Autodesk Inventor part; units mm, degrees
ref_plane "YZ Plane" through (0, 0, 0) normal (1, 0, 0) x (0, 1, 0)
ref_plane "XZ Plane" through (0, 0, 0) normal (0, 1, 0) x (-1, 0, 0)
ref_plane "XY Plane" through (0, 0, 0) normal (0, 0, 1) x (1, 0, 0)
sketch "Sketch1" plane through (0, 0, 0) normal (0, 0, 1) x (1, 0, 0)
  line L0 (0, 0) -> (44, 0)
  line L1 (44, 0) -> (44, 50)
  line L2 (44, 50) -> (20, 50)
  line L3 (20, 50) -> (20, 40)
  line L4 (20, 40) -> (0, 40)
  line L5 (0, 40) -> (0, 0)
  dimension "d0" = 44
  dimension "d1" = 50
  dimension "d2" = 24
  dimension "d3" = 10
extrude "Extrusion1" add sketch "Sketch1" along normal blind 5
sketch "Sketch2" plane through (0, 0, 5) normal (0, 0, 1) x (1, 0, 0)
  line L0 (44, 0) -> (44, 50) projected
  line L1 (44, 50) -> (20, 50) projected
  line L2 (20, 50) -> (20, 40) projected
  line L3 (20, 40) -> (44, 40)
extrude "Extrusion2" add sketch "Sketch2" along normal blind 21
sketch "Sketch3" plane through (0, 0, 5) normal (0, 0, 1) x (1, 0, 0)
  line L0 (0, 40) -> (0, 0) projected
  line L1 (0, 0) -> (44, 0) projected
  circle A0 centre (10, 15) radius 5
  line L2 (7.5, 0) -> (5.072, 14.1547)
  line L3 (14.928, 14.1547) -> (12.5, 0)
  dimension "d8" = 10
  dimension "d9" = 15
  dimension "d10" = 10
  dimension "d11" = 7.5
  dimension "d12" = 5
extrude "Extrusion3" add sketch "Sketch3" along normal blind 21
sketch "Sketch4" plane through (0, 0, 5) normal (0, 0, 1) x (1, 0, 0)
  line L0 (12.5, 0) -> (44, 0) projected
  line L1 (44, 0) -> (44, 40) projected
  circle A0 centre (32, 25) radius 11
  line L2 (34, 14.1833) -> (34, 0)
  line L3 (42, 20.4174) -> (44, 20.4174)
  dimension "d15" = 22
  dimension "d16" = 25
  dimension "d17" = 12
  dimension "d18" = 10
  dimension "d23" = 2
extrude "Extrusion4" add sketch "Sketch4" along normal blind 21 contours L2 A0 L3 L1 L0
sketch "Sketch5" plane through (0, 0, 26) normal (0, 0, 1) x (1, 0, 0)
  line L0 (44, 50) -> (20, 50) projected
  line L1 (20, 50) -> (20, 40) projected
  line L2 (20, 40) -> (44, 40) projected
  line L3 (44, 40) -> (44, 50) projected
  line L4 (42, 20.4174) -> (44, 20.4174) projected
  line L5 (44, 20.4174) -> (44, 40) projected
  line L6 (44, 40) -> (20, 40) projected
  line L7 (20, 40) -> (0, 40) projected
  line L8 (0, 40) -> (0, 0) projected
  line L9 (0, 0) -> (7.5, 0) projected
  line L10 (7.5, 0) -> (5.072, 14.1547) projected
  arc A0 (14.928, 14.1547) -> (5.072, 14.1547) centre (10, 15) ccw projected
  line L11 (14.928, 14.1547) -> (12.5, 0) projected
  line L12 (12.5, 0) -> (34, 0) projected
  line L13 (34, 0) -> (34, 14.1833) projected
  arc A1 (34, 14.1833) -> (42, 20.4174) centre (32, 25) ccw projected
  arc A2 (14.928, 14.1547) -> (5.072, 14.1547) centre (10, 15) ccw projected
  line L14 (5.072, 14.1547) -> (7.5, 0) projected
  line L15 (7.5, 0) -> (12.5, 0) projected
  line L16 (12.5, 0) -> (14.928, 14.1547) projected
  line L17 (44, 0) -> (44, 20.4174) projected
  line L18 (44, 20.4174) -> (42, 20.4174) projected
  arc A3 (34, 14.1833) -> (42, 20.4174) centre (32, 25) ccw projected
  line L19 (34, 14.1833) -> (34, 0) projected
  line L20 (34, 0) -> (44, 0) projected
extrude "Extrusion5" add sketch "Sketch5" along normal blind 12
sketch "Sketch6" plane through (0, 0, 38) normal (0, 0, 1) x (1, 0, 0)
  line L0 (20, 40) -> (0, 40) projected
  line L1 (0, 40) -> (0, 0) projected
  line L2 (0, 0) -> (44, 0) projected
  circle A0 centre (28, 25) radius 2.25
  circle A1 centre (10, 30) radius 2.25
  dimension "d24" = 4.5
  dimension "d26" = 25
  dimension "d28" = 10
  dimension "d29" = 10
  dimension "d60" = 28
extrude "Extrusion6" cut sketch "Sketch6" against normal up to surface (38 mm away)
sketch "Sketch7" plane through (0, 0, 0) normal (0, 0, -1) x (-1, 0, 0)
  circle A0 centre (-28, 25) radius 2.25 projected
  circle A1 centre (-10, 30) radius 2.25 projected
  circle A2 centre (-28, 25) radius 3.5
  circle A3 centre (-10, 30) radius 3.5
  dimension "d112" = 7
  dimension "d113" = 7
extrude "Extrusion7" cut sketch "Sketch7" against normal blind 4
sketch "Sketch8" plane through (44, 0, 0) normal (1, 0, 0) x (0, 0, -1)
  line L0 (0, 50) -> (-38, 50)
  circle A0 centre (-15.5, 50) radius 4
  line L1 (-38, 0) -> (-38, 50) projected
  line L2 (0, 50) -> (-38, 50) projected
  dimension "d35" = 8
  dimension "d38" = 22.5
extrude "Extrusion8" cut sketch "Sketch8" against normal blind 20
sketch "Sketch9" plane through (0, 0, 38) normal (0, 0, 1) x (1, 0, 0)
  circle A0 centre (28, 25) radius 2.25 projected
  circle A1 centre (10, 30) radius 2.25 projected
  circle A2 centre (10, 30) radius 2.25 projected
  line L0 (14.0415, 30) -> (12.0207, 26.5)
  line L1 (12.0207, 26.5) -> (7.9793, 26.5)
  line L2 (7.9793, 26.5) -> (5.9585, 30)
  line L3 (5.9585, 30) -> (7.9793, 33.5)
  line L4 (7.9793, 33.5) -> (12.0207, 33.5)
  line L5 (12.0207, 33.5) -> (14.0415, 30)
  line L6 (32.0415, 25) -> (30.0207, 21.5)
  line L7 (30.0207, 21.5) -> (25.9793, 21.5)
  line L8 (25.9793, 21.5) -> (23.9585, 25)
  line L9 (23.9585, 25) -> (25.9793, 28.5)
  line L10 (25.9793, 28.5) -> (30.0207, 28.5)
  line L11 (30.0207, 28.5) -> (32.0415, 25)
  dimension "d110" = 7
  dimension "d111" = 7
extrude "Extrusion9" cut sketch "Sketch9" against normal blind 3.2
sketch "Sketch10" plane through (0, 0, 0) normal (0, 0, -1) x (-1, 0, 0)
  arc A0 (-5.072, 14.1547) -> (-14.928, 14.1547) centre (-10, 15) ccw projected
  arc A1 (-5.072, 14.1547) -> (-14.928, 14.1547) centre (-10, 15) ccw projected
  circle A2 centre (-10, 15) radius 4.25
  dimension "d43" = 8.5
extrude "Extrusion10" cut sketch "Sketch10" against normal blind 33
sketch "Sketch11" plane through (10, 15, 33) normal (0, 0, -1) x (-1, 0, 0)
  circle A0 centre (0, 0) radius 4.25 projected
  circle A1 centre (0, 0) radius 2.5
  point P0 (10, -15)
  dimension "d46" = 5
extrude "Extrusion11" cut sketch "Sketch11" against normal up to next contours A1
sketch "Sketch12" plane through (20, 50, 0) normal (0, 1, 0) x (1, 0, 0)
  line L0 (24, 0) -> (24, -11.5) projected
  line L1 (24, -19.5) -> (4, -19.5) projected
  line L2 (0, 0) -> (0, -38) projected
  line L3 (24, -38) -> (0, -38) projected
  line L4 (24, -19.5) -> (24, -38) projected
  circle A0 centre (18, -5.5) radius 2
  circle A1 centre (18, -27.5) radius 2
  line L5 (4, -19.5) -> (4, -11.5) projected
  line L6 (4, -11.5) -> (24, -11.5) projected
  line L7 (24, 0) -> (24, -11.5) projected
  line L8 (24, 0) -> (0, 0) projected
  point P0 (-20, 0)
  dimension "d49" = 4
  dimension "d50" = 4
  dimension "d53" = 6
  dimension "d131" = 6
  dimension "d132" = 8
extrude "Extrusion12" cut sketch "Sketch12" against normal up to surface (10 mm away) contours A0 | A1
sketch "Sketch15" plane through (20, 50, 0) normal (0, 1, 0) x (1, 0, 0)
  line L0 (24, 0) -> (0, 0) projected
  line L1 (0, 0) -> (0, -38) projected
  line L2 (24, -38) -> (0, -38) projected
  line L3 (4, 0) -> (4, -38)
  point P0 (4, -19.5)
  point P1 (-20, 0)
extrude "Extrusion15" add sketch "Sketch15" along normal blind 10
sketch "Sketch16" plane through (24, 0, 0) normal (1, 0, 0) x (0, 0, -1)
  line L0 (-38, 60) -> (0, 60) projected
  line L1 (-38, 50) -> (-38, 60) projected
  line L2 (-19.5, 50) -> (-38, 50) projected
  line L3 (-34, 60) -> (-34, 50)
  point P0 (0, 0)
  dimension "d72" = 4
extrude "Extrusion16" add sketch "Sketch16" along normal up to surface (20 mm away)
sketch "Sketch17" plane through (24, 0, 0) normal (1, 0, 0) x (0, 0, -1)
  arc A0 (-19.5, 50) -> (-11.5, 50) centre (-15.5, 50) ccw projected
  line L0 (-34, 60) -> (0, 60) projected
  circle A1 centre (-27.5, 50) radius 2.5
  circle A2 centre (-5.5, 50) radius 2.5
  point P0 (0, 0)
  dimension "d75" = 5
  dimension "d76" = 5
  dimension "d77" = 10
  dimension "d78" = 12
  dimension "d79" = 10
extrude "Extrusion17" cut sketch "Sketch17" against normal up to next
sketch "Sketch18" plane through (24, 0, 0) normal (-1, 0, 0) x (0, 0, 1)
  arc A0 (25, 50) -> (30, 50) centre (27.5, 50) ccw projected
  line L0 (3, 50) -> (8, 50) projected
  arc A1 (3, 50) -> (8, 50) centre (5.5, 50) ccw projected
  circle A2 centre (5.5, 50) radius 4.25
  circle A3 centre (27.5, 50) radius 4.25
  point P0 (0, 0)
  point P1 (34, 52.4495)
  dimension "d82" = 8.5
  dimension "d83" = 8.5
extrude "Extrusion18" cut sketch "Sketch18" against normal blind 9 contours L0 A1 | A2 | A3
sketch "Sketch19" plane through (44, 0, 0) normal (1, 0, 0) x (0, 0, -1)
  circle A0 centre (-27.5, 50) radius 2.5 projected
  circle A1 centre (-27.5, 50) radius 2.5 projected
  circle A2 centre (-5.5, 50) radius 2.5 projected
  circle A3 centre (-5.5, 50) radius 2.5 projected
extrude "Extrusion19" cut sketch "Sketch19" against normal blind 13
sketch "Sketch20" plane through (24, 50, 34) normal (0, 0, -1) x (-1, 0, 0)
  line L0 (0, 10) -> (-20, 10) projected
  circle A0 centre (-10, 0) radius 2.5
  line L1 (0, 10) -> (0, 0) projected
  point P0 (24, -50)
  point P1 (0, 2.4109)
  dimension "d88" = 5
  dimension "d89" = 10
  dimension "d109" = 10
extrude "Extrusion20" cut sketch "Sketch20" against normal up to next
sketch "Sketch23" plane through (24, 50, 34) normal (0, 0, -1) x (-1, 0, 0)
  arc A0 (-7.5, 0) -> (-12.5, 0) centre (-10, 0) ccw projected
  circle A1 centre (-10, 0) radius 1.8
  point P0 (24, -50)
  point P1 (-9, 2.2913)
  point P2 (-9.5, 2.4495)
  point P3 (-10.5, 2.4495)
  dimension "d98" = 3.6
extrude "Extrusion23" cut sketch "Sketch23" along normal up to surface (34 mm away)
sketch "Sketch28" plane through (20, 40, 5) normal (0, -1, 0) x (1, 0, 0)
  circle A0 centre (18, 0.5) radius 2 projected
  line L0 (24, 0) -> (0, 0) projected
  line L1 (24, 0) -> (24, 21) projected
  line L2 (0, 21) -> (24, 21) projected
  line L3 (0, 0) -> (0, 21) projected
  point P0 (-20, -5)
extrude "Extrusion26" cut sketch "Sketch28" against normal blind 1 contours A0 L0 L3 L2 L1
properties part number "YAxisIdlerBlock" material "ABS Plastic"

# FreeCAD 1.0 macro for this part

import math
import FreeCAD as App
import Part
import Sketcher
from FreeCAD import Vector
Q = App.Units.Quantity


def add_polygon(sketch, points):
    """Adds a closed chain of lines whose ends are joined by coincident constraints."""
    first, n = sketch.GeometryCount, len(points)
    for a, b in zip(points, points[1:] + points[:1]):
        sketch.addGeometry(Part.LineSegment(App.Vector(*a, 0), App.Vector(*b, 0)), False)
    for i in range(n):
        sketch.addConstraint(Sketcher.Constraint("Coincident", first + i, 2, first + (i + 1) % n, 1))

doc = App.newDocument("Part")
body = doc.addObject("PartDesign::Body", "Body")

# Sketch on XY plane
sketch1 = doc.addObject("Sketcher::SketchObject", "Sketch")
body.addObject(sketch1)
sketch1.AttachmentSupport = (doc.XY_Plane, [""])
sketch1.MapMode = "FlatFace"
add_polygon(sketch1, [(0, 40), (0, 0), (44, 0), (44, 50), (20, 50), (20, 40)])  # lines 0-5
sketch1.addConstraint(Sketcher.Constraint("Vertical", 0))
sketch1.addConstraint(Sketcher.Constraint("Horizontal", 1))
sketch1.addConstraint(Sketcher.Constraint("Vertical", 2))
sketch1.addConstraint(Sketcher.Constraint("Horizontal", 3))
sketch1.addConstraint(Sketcher.Constraint("Vertical", 4))
sketch1.addConstraint(Sketcher.Constraint("Horizontal", 5))
sketch1.addConstraint(Sketcher.Constraint("Coincident", 0, 2, -1, 1))
sketch1.addConstraint(Sketcher.Constraint("DistanceX", 1, 1, 1, 2, 44.0))
sketch1.addConstraint(Sketcher.Constraint("DistanceX", 3, 2, 3, 1, 24.0))
sketch1.addConstraint(Sketcher.Constraint("DistanceY", 2, 1, 2, 2, 50.0))
sketch1.addConstraint(Sketcher.Constraint("DistanceY", 4, 2, 4, 1, 10.0))
pad1 = doc.addObject("PartDesign::Pad", "Pad")
body.addObject(pad1)
pad1.Profile = sketch1
pad1.Length = 5

# Sketch on XY plane
sketch2 = doc.addObject("Sketcher::SketchObject", "Sketch001")
body.addObject(sketch2)
sketch2.AttachmentSupport = (doc.XY_Plane, [""])
sketch2.MapMode = "FlatFace"
sketch2.AttachmentOffset = App.Placement(Vector(0, 0, 5), App.Rotation())
add_polygon(sketch2, [(20, 40), (44, 40), (44, 50), (20, 50)])  # lines 0-3
sketch2.addConstraint(Sketcher.Constraint("Horizontal", 0))
sketch2.addConstraint(Sketcher.Constraint("Vertical", 1))
sketch2.addConstraint(Sketcher.Constraint("Horizontal", 2))
sketch2.addConstraint(Sketcher.Constraint("Vertical", 3))
sketch2.addConstraint(Sketcher.Constraint("DistanceX", 0, 1, 0, 2, 24.0))
sketch2.addConstraint(Sketcher.Constraint("DistanceY", 1, 1, 1, 2, 10.0))
sketch2.addConstraint(Sketcher.Constraint("DistanceX", -1, 1, 0, 2, 44.0))
sketch2.addConstraint(Sketcher.Constraint("DistanceY", -1, 1, 0, 2, 40.0))
pad2 = doc.addObject("PartDesign::Pad", "Pad001")
body.addObject(pad2)
pad2.Profile = sketch2
pad2.Length = 21

# Sketch on XY plane
sketch3 = doc.addObject("Sketcher::SketchObject", "Sketch002")
body.addObject(sketch3)
sketch3.AttachmentSupport = (doc.XY_Plane, [""])
sketch3.MapMode = "FlatFace"
sketch3.AttachmentOffset = App.Placement(Vector(0, 0, 5), App.Rotation())
sketch3.addGeometry(Part.LineSegment(Vector(5, 14, 0), Vector(8, 0, 0)), False)
sketch3.addGeometry(Part.LineSegment(Vector(8, 0, 0), Vector(12, 0, 0)), False)
sketch3.addGeometry(Part.LineSegment(Vector(12, 0, 0), Vector(15, 14, 0)), False)
sketch3.addGeometry(Part.ArcOfCircle(Part.Circle(Vector(10, 15, 0), Vector(0, 0, 1), 5), math.radians(-10), math.radians(190)), False)
sketch3.addConstraint(Sketcher.Constraint("Coincident", 0, 2, 1, 1))
sketch3.addConstraint(Sketcher.Constraint("Coincident", 1, 2, 2, 1))
sketch3.addConstraint(Sketcher.Constraint("Tangent", 2, 2, 3, 1))
sketch3.addConstraint(Sketcher.Constraint("Tangent", 3, 2, 0, 1))
sketch3.addConstraint(Sketcher.Constraint("Horizontal", 1))
sketch3.addConstraint(Sketcher.Constraint("PointOnObject", 0, 2, -1))
sketch3.addConstraint(Sketcher.Constraint("Horizontal", 2, 2, 3, 2))
sketch3.addConstraint(Sketcher.Constraint("Radius", 3, 5.0))
sketch3.addConstraint(Sketcher.Constraint("DistanceX", 1, 1, 1, 2, 5.0))
sketch3.addConstraint(Sketcher.Constraint("DistanceX", -1, 1, 3, 3, 10.0))
sketch3.addConstraint(Sketcher.Constraint("DistanceY", -1, 1, 3, 3, 15.0))
pad3 = doc.addObject("PartDesign::Pad", "Pad002")
body.addObject(pad3)
pad3.Profile = sketch3
pad3.Length = 21

# Sketch on XY plane
sketch4 = doc.addObject("Sketcher::SketchObject", "Sketch003")
body.addObject(sketch4)
sketch4.AttachmentSupport = (doc.XY_Plane, [""])
sketch4.MapMode = "FlatFace"
sketch4.AttachmentOffset = App.Placement(Vector(0, 0, 5), App.Rotation())
sketch4.addGeometry(Part.LineSegment(Vector(34, 14.2, 0), Vector(34, 0, 0)), False)
sketch4.addGeometry(Part.LineSegment(Vector(34, 0, 0), Vector(44, 0, 0)), False)
sketch4.addGeometry(Part.LineSegment(Vector(44, 0, 0), Vector(44, 20.4, 0)), False)
sketch4.addGeometry(Part.LineSegment(Vector(44, 20.4, 0), Vector(42, 20.4, 0)), False)
sketch4.addGeometry(Part.ArcOfCircle(Part.Circle(Vector(32, 25, 0), Vector(0, 0, 1), 11), math.radians(-80), math.radians(-25)), False)
sketch4.addConstraint(Sketcher.Constraint("Coincident", 0, 2, 1, 1))
sketch4.addConstraint(Sketcher.Constraint("Coincident", 1, 2, 2, 1))
sketch4.addConstraint(Sketcher.Constraint("Coincident", 2, 2, 3, 1))
sketch4.addConstraint(Sketcher.Constraint("Coincident", 3, 2, 4, 2))
sketch4.addConstraint(Sketcher.Constraint("Coincident", 4, 1, 0, 1))
sketch4.addConstraint(Sketcher.Constraint("Vertical", 0))
sketch4.addConstraint(Sketcher.Constraint("Horizontal", 1))
sketch4.addConstraint(Sketcher.Constraint("Vertical", 2))
sketch4.addConstraint(Sketcher.Constraint("Horizontal", 3))
sketch4.addConstraint(Sketcher.Constraint("PointOnObject", 0, 2, -1))
sketch4.addConstraint(Sketcher.Constraint("Radius", 4, 11.0))
sketch4.addConstraint(Sketcher.Constraint("DistanceX", 1, 1, 1, 2, 10.0))
sketch4.addConstraint(Sketcher.Constraint("DistanceX", 3, 2, 3, 1, 2.0))
sketch4.addConstraint(Sketcher.Constraint("DistanceY", -1, 1, 4, 3, 25.0))
sketch4.addConstraint(Sketcher.Constraint("DistanceX", 4, 3, 0, 2, 2.0))
sketch4.addConstraint(Sketcher.Constraint("DistanceX", -1, 1, 4, 3, 32.0))
pad4 = doc.addObject("PartDesign::Pad", "Pad003")
body.addObject(pad4)
pad4.Profile = sketch4
pad4.Length = 21

# Sketch on XY plane
sketch5 = doc.addObject("Sketcher::SketchObject", "Sketch004")
body.addObject(sketch5)
sketch5.AttachmentSupport = (doc.XY_Plane, [""])
sketch5.MapMode = "FlatFace"
sketch5.AttachmentOffset = App.Placement(Vector(0, 0, 26), App.Rotation())
add_polygon(sketch5, [(44, 50), (20, 50), (20, 40), (0, 40), (0, 0), (44, 0)])  # lines 0-5
sketch5.addConstraint(Sketcher.Constraint("Horizontal", 0))
sketch5.addConstraint(Sketcher.Constraint("Vertical", 1))
sketch5.addConstraint(Sketcher.Constraint("Horizontal", 2))
sketch5.addConstraint(Sketcher.Constraint("Vertical", 3))
sketch5.addConstraint(Sketcher.Constraint("Horizontal", 4))
sketch5.addConstraint(Sketcher.Constraint("Vertical", 5))
sketch5.addConstraint(Sketcher.Constraint("Coincident", 3, 2, -1, 1))
sketch5.addConstraint(Sketcher.Constraint("DistanceX", 0, 2, 0, 1, 24.0))
sketch5.addConstraint(Sketcher.Constraint("DistanceX", 2, 2, 2, 1, 20.0))
sketch5.addConstraint(Sketcher.Constraint("DistanceY", 1, 2, 1, 1, 10.0))
sketch5.addConstraint(Sketcher.Constraint("DistanceY", 3, 2, 3, 1, 40.0))
pad5 = doc.addObject("PartDesign::Pad", "Pad004")
body.addObject(pad5)
pad5.Profile = sketch5
pad5.Length = 12

# Sketch on XY plane
sketch6 = doc.addObject("Sketcher::SketchObject", "Sketch005")
body.addObject(sketch6)
sketch6.AttachmentSupport = (doc.XY_Plane, [""])
sketch6.MapMode = "FlatFace"
sketch6.AttachmentOffset = App.Placement(Vector(0, 0, 38), App.Rotation())
sketch6.addGeometry(Part.Circle(Vector(28, 25, 0), Vector(0, 0, 1), 2.2), False)
sketch6.addGeometry(Part.Circle(Vector(10, 30, 0), Vector(0, 0, 1), 2.2), False)
sketch6.addConstraint(Sketcher.Constraint("Equal", 0, 1))
sketch6.addConstraint(Sketcher.Constraint("Diameter", 0, 4.5))
sketch6.addConstraint(Sketcher.Constraint("DistanceX", -1, 1, 0, 3, 28.0))
sketch6.addConstraint(Sketcher.Constraint("DistanceY", -1, 1, 0, 3, 25.0))
sketch6.addConstraint(Sketcher.Constraint("DistanceX", -1, 1, 1, 3, 10.0))
sketch6.addConstraint(Sketcher.Constraint("DistanceY", -1, 1, 1, 3, 30.0))
pocket1 = doc.addObject("PartDesign::Pocket", "Pocket")
body.addObject(pocket1)
pocket1.Profile = sketch6
pocket1.Length = 38

# Sketch on XY plane
sketch7 = doc.addObject("Sketcher::SketchObject", "Sketch006")
body.addObject(sketch7)
sketch7.AttachmentSupport = (doc.XY_Plane, [""])
sketch7.MapMode = "FlatFace"
sketch7.addGeometry(Part.Circle(Vector(28, 25, 0), Vector(0, 0, 1), 3.5), False)
sketch7.addGeometry(Part.Circle(Vector(28, 25, 0), Vector(0, 0, 1), 2.2), False)
sketch7.addGeometry(Part.Circle(Vector(10, 30, 0), Vector(0, 0, 1), 3.5), False)
sketch7.addGeometry(Part.Circle(Vector(10, 30, 0), Vector(0, 0, 1), 2.2), False)
sketch7.addConstraint(Sketcher.Constraint("Coincident", 1, 3, 0, 3))
sketch7.addConstraint(Sketcher.Constraint("Coincident", 3, 3, 2, 3))
sketch7.addConstraint(Sketcher.Constraint("Equal", 0, 2))
sketch7.addConstraint(Sketcher.Constraint("Equal", 1, 3))
sketch7.addConstraint(Sketcher.Constraint("Diameter", 0, 7.0))
sketch7.addConstraint(Sketcher.Constraint("Diameter", 1, 4.5))
sketch7.addConstraint(Sketcher.Constraint("DistanceX", -1, 1, 0, 3, 28.0))
sketch7.addConstraint(Sketcher.Constraint("DistanceY", -1, 1, 0, 3, 25.0))
sketch7.addConstraint(Sketcher.Constraint("DistanceX", -1, 1, 2, 3, 10.0))
sketch7.addConstraint(Sketcher.Constraint("DistanceY", -1, 1, 2, 3, 30.0))
pocket2 = doc.addObject("PartDesign::Pocket", "Pocket001")
body.addObject(pocket2)
pocket2.Profile = sketch7
pocket2.Length = 4
pocket2.Reversed = True

# Sketch on YZ plane
sketch8 = doc.addObject("Sketcher::SketchObject", "Sketch007")
body.addObject(sketch8)
sketch8.AttachmentSupport = (doc.YZ_Plane, [""])
sketch8.MapMode = "FlatFace"
sketch8.AttachmentOffset = App.Placement(Vector(0, 0, 44), App.Rotation())
sketch8.addGeometry(Part.Circle(Vector(50, 15.5, 0), Vector(0, 0, 1), 4), False)
sketch8.addConstraint(Sketcher.Constraint("Diameter", 0, 8.0))
sketch8.addConstraint(Sketcher.Constraint("DistanceX", -1, 1, 0, 3, 50.0))
sketch8.addConstraint(Sketcher.Constraint("DistanceY", -1, 1, 0, 3, 15.5))
pocket3 = doc.addObject("PartDesign::Pocket", "Pocket002")
body.addObject(pocket3)
pocket3.Profile = sketch8
pocket3.Length = 20

# Sketch on XY plane
sketch9 = doc.addObject("Sketcher::SketchObject", "Sketch008")
body.addObject(sketch9)
sketch9.AttachmentSupport = (doc.XY_Plane, [""])
sketch9.MapMode = "FlatFace"
sketch9.AttachmentOffset = App.Placement(Vector(0, 0, 38), App.Rotation())
add_polygon(sketch9, [(12, 26.5), (14, 30), (12, 33.5), (8, 33.5), (6, 30), (8, 26.5)])  # lines 0-5
sketch9.addGeometry(Part.Circle(Vector(10, 30, 0), Vector(0, 0, 1), 2.2), False)  # 6
add_polygon(sketch9, [(30, 21.5), (32, 25), (30, 28.5), (26, 28.5), (24, 25), (26, 21.5)])  # lines 7-12
sketch9.addGeometry(Part.Circle(Vector(28, 25, 0), Vector(0, 0, 1), 2.2), False)  # 13
sketch9.addConstraint(Sketcher.Constraint("Horizontal", 2))
sketch9.addConstraint(Sketcher.Constraint("Horizontal", 5))
sketch9.addConstraint(Sketcher.Constraint("Horizontal", 9))
sketch9.addConstraint(Sketcher.Constraint("Horizontal", 12))
sketch9.addConstraint(Sketcher.Constraint("Equal", 6, 13))
sketch9.addConstraint(Sketcher.Constraint("Parallel", 0, 3))
sketch9.addConstraint(Sketcher.Constraint("Parallel", 1, 4))
sketch9.addConstraint(Sketcher.Constraint("Parallel", 3, 7))
sketch9.addConstraint(Sketcher.Constraint("Parallel", 4, 8))
sketch9.addConstraint(Sketcher.Constraint("Parallel", 7, 10))
sketch9.addConstraint(Sketcher.Constraint("Parallel", 8, 11))
sketch9.addConstraint(Sketcher.Constraint("Horizontal", 6, 3, 0, 2))
sketch9.addConstraint(Sketcher.Constraint("Horizontal", 0, 2, 3, 2))
sketch9.addConstraint(Sketcher.Constraint("Horizontal", 13, 3, 7, 2))
sketch9.addConstraint(Sketcher.Constraint("Horizontal", 7, 2, 10, 2))
sketch9.addConstraint(Sketcher.Constraint("Vertical", 2, 2, 4, 2))
sketch9.addConstraint(Sketcher.Constraint("Vertical", 1, 2, 5, 2))
sketch9.addConstraint(Sketcher.Constraint("Vertical", 9, 2, 11, 2))
sketch9.addConstraint(Sketcher.Constraint("Equal", 5, 9))
sketch9.addConstraint(Sketcher.Constraint("Equal", 4, 7))
sketch9.addConstraint(Sketcher.Constraint("DistanceY", 4, 2, 2, 2, 7.0))
sketch9.addConstraint(Sketcher.Constraint("Diameter", 6, 4.5))
sketch9.addConstraint(Sketcher.Constraint("Angle", 0, Q("59.999 deg")))
sketch9.addConstraint(Sketcher.Constraint("DistanceX", -1, 1, 6, 3, 10.0))
sketch9.addConstraint(Sketcher.Constraint("DistanceY", -1, 1, 6, 3, 30.0))
sketch9.addConstraint(Sketcher.Constraint("DistanceX", -1, 1, 13, 3, 28.0))
sketch9.addConstraint(Sketcher.Constraint("DistanceY", -1, 1, 13, 3, 25.0))
sketch9.addConstraint(Sketcher.Constraint("DistanceX", 0, 2, 7, 2, 18.0))
sketch9.addConstraint(Sketcher.Constraint("DistanceX", 2, 2, 2, 1, 4.0414))
sketch9.addConstraint(Sketcher.Constraint("DistanceX", -1, 1, 0, 2, 14.0415))
pocket4 = doc.addObject("PartDesign::Pocket", "Pocket003")
body.addObject(pocket4)
pocket4.Profile = sketch9
pocket4.Length = 3.2

# Sketch on XY plane
sketch10 = doc.addObject("Sketcher::SketchObject", "Sketch009")
body.addObject(sketch10)
sketch10.AttachmentSupport = (doc.XY_Plane, [""])
sketch10.MapMode = "FlatFace"
sketch10.addGeometry(Part.Circle(Vector(10, 15, 0), Vector(0, 0, 1), 4.2), False)
sketch10.addConstraint(Sketcher.Constraint("Diameter", 0, 8.5))
sketch10.addConstraint(Sketcher.Constraint("DistanceX", -1, 1, 0, 3, 10.0))
sketch10.addConstraint(Sketcher.Constraint("DistanceY", -1, 1, 0, 3, 15.0))
pocket5 = doc.addObject("PartDesign::Pocket", "Pocket004")
body.addObject(pocket5)
pocket5.Profile = sketch10
pocket5.Length = 33
pocket5.Reversed = True

# Sketch on XY plane
sketch11 = doc.addObject("Sketcher::SketchObject", "Sketch010")
body.addObject(sketch11)
sketch11.AttachmentSupport = (doc.XY_Plane, [""])
sketch11.MapMode = "FlatFace"
sketch11.AttachmentOffset = App.Placement(Vector(0, 0, 33), App.Rotation())
sketch11.addGeometry(Part.Circle(Vector(10, 15, 0), Vector(0, 0, 1), 2.5), False)
sketch11.addConstraint(Sketcher.Constraint("Diameter", 0, 5.0))
sketch11.addConstraint(Sketcher.Constraint("DistanceX", -1, 1, 0, 3, 10.0))
sketch11.addConstraint(Sketcher.Constraint("DistanceY", -1, 1, 0, 3, 15.0))
pocket6 = doc.addObject("PartDesign::Pocket", "Pocket005")
body.addObject(pocket6)
pocket6.Profile = sketch11
pocket6.Type = "UpToFirst"
pocket6.Reversed = True

# Sketch on XZ plane
sketch12 = doc.addObject("Sketcher::SketchObject", "Sketch011")
body.addObject(sketch12)
sketch12.AttachmentSupport = (doc.XZ_Plane, [""])
sketch12.MapMode = "FlatFace"
sketch12.AttachmentOffset = App.Placement(Vector(0, 0, -50), App.Rotation())
sketch12.addGeometry(Part.Circle(Vector(38, 5.5, 0), Vector(0, 0, 1), 2), False)
sketch12.addGeometry(Part.Circle(Vector(38, 27.5, 0), Vector(0, 0, 1), 2), False)
sketch12.addConstraint(Sketcher.Constraint("Equal", 0, 1))
sketch12.addConstraint(Sketcher.Constraint("Vertical", 0, 3, 1, 3))
sketch12.addConstraint(Sketcher.Constraint("Diameter", 0, 4.0))
sketch12.addConstraint(Sketcher.Constraint("DistanceX", -1, 1, 0, 3, 38.0))
sketch12.addConstraint(Sketcher.Constraint("DistanceY", 0, 3, 1, 3, 22.0))
sketch12.addConstraint(Sketcher.Constraint("DistanceY", -1, 1, 0, 3, 5.5))
pocket7 = doc.addObject("PartDesign::Pocket", "Pocket006")
body.addObject(pocket7)
pocket7.Profile = sketch12
pocket7.Length = 10
pocket7.Reversed = True

# Sketch on XZ plane
sketch13 = doc.addObject("Sketcher::SketchObject", "Sketch012")
body.addObject(sketch13)
sketch13.AttachmentSupport = (doc.XZ_Plane, [""])
sketch13.MapMode = "FlatFace"
sketch13.AttachmentOffset = App.Placement(Vector(0, 0, -50), App.Rotation())
add_polygon(sketch13, [(24, 38), (24, 0), (20, 0), (20, 38)])  # lines 0-3
sketch13.addConstraint(Sketcher.Constraint("Vertical", 0))
sketch13.addConstraint(Sketcher.Constraint("Horizontal", 1))
sketch13.addConstraint(Sketcher.Constraint("Vertical", 2))
sketch13.addConstraint(Sketcher.Constraint("Horizontal", 3))
sketch13.addConstraint(Sketcher.Constraint("PointOnObject", 0, 2, -1))
sketch13.addConstraint(Sketcher.Constraint("DistanceX", 1, 2, 1, 1, 4.0))
sketch13.addConstraint(Sketcher.Constraint("DistanceY", 0, 2, 0, 1, 38.0))
sketch13.addConstraint(Sketcher.Constraint("DistanceX", -1, 1, 0, 2, 24.0))
pad6 = doc.addObject("PartDesign::Pad", "Pad005")
body.addObject(pad6)
pad6.Profile = sketch13
pad6.Length = 10
pad6.Reversed = True

# Sketch on YZ plane
sketch14 = doc.addObject("Sketcher::SketchObject", "Sketch013")
body.addObject(sketch14)
sketch14.AttachmentSupport = (doc.YZ_Plane, [""])
sketch14.MapMode = "FlatFace"
sketch14.AttachmentOffset = App.Placement(Vector(0, 0, 24), App.Rotation())
add_polygon(sketch14, [(60, 34), (60, 38), (50, 38), (50, 34)])  # lines 0-3
sketch14.addConstraint(Sketcher.Constraint("Vertical", 0))
sketch14.addConstraint(Sketcher.Constraint("Horizontal", 1))
sketch14.addConstraint(Sketcher.Constraint("Vertical", 2))
sketch14.addConstraint(Sketcher.Constraint("Horizontal", 3))
sketch14.addConstraint(Sketcher.Constraint("DistanceY", 0, 1, 0, 2, 4.0))
sketch14.addConstraint(Sketcher.Constraint("DistanceX", 1, 2, 1, 1, 10.0))
sketch14.addConstraint(Sketcher.Constraint("DistanceX", -1, 1, 0, 2, 60.0))
sketch14.addConstraint(Sketcher.Constraint("DistanceY", -1, 1, 0, 2, 38.0))
pad7 = doc.addObject("PartDesign::Pad", "Pad006")
body.addObject(pad7)
pad7.Profile = sketch14
pad7.Length = 20

# Sketch on YZ plane
sketch15 = doc.addObject("Sketcher::SketchObject", "Sketch014")
body.addObject(sketch15)
sketch15.AttachmentSupport = (doc.YZ_Plane, [""])
sketch15.MapMode = "FlatFace"
sketch15.AttachmentOffset = App.Placement(Vector(0, 0, 24), App.Rotation())
sketch15.addGeometry(Part.Circle(Vector(50, 27.5, 0), Vector(0, 0, 1), 2.5), False)
sketch15.addGeometry(Part.Circle(Vector(50, 5.5, 0), Vector(0, 0, 1), 2.5), False)
sketch15.addConstraint(Sketcher.Constraint("Equal", 0, 1))
sketch15.addConstraint(Sketcher.Constraint("Vertical", 0, 3, 1, 3))
sketch15.addConstraint(Sketcher.Constraint("Diameter", 0, 5.0))
sketch15.addConstraint(Sketcher.Constraint("DistanceX", -1, 1, 0, 3, 50.0))
sketch15.addConstraint(Sketcher.Constraint("DistanceY", 1, 3, 0, 3, 22.0))
sketch15.addConstraint(Sketcher.Constraint("DistanceY", -1, 1, 0, 3, 27.5))
pocket8 = doc.addObject("PartDesign::Pocket", "Pocket007")
body.addObject(pocket8)
pocket8.Profile = sketch15
pocket8.Type = "UpToFirst"

# Sketch on YZ plane
sketch16 = doc.addObject("Sketcher::SketchObject", "Sketch015")
body.addObject(sketch16)
sketch16.AttachmentSupport = (doc.YZ_Plane, [""])
sketch16.MapMode = "FlatFace"
sketch16.AttachmentOffset = App.Placement(Vector(0, 0, 24), App.Rotation())
sketch16.addGeometry(Part.Circle(Vector(50, 5.5, 0), Vector(0, 0, 1), 4.2), False)
sketch16.addGeometry(Part.Circle(Vector(50, 27.5, 0), Vector(0, 0, 1), 4.2), False)
sketch16.addConstraint(Sketcher.Constraint("Equal", 0, 1))
sketch16.addConstraint(Sketcher.Constraint("Vertical", 0, 3, 1, 3))
sketch16.addConstraint(Sketcher.Constraint("Diameter", 0, 8.5))
sketch16.addConstraint(Sketcher.Constraint("DistanceX", -1, 1, 0, 3, 50.0))
sketch16.addConstraint(Sketcher.Constraint("DistanceY", 0, 3, 1, 3, 22.0))
sketch16.addConstraint(Sketcher.Constraint("DistanceY", -1, 1, 0, 3, 5.5))
pocket9 = doc.addObject("PartDesign::Pocket", "Pocket008")
body.addObject(pocket9)
pocket9.Profile = sketch16
pocket9.Length = 9
pocket9.Reversed = True

# Sketch on YZ plane
sketch17 = doc.addObject("Sketcher::SketchObject", "Sketch016")
body.addObject(sketch17)
sketch17.AttachmentSupport = (doc.YZ_Plane, [""])
sketch17.MapMode = "FlatFace"
sketch17.AttachmentOffset = App.Placement(Vector(0, 0, 44), App.Rotation())
sketch17.addGeometry(Part.Circle(Vector(50, 27.5, 0), Vector(0, 0, 1), 2.5), False)
sketch17.addGeometry(Part.Circle(Vector(50, 5.5, 0), Vector(0, 0, 1), 2.5), False)
sketch17.addConstraint(Sketcher.Constraint("Equal", 0, 1))
sketch17.addConstraint(Sketcher.Constraint("Vertical", 0, 3, 1, 3))
sketch17.addConstraint(Sketcher.Constraint("Diameter", 0, 5.0))
sketch17.addConstraint(Sketcher.Constraint("DistanceX", -1, 1, 0, 3, 50.0))
sketch17.addConstraint(Sketcher.Constraint("DistanceY", 1, 3, 0, 3, 22.0))
sketch17.addConstraint(Sketcher.Constraint("DistanceY", -1, 1, 0, 3, 27.5))
pocket10 = doc.addObject("PartDesign::Pocket", "Pocket009")
body.addObject(pocket10)
pocket10.Profile = sketch17
pocket10.Length = 13

# Sketch on XY plane
sketch18 = doc.addObject("Sketcher::SketchObject", "Sketch017")
body.addObject(sketch18)
sketch18.AttachmentSupport = (doc.XY_Plane, [""])
sketch18.MapMode = "FlatFace"
sketch18.AttachmentOffset = App.Placement(Vector(0, 0, 34), App.Rotation())
sketch18.addGeometry(Part.Circle(Vector(34, 50, 0), Vector(0, 0, 1), 2.5), False)
sketch18.addConstraint(Sketcher.Constraint("Diameter", 0, 5.0))
sketch18.addConstraint(Sketcher.Constraint("DistanceX", -1, 1, 0, 3, 34.0))
sketch18.addConstraint(Sketcher.Constraint("DistanceY", -1, 1, 0, 3, 50.0))
pocket11 = doc.addObject("PartDesign::Pocket", "Pocket010")
body.addObject(pocket11)
pocket11.Profile = sketch18
pocket11.Type = "UpToFirst"
pocket11.Reversed = True

# Sketch on XY plane
sketch19 = doc.addObject("Sketcher::SketchObject", "Sketch018")
body.addObject(sketch19)
sketch19.AttachmentSupport = (doc.XY_Plane, [""])
sketch19.MapMode = "FlatFace"
sketch19.AttachmentOffset = App.Placement(Vector(0, 0, 34), App.Rotation())
sketch19.addGeometry(Part.Circle(Vector(34, 50, 0), Vector(0, 0, 1), 1.8), False)
sketch19.addConstraint(Sketcher.Constraint("Diameter", 0, 3.6))
sketch19.addConstraint(Sketcher.Constraint("DistanceX", -1, 1, 0, 3, 34.0))
sketch19.addConstraint(Sketcher.Constraint("DistanceY", -1, 1, 0, 3, 50.0))
pocket12 = doc.addObject("PartDesign::Pocket", "Pocket011")
body.addObject(pocket12)
pocket12.Profile = sketch19
pocket12.Length = 34

# Sketch on XZ plane
sketch20 = doc.addObject("Sketcher::SketchObject", "Sketch019")
body.addObject(sketch20)
sketch20.AttachmentSupport = (doc.XZ_Plane, [""])
sketch20.MapMode = "FlatFace"
sketch20.AttachmentOffset = App.Placement(Vector(0, 0, -40), App.Rotation())
sketch20.addGeometry(Part.ArcOfCircle(Part.Circle(Vector(38, 5.5, 0), Vector(0, 0, 1), 2), math.radians(-14), math.radians(194)), False)
sketch20.addGeometry(Part.LineSegment(Vector(39.9, 5, 0), Vector(44, 5, 0)), False)
sketch20.addGeometry(Part.LineSegment(Vector(44, 5, 0), Vector(44, 26, 0)), False)
sketch20.addGeometry(Part.LineSegment(Vector(44, 26, 0), Vector(20, 26, 0)), False)
sketch20.addGeometry(Part.LineSegment(Vector(20, 26, 0), Vector(20, 5, 0)), False)
sketch20.addGeometry(Part.LineSegment(Vector(20, 5, 0), Vector(36.1, 5, 0)), False)
sketch20.addConstraint(Sketcher.Constraint("Coincident", 0, 1, 1, 1))
sketch20.addConstraint(Sketcher.Constraint("Coincident", 1, 2, 2, 1))
sketch20.addConstraint(Sketcher.Constraint("Coincident", 2, 2, 3, 1))
sketch20.addConstraint(Sketcher.Constraint("Coincident", 3, 2, 4, 1))
sketch20.addConstraint(Sketcher.Constraint("Coincident", 4, 2, 5, 1))
sketch20.addConstraint(Sketcher.Constraint("Coincident", 5, 2, 0, 2))
sketch20.addConstraint(Sketcher.Constraint("Horizontal", 1))
sketch20.addConstraint(Sketcher.Constraint("Vertical", 2))
sketch20.addConstraint(Sketcher.Constraint("Horizontal", 3))
sketch20.addConstraint(Sketcher.Constraint("Vertical", 4))
sketch20.addConstraint(Sketcher.Constraint("Horizontal", 5))
sketch20.addConstraint(Sketcher.Constraint("Horizontal", 1, 2, 4, 2))
sketch20.addConstraint(Sketcher.Constraint("Radius", 0, 2.0))
sketch20.addConstraint(Sketcher.Constraint("DistanceX", 3, 2, 3, 1, 24.0))
sketch20.addConstraint(Sketcher.Constraint("DistanceY", 2, 1, 2, 2, 21.0))
sketch20.addConstraint(Sketcher.Constraint("DistanceX", -1, 1, 0, 3, 38.0))
sketch20.addConstraint(Sketcher.Constraint("DistanceY", -1, 1, 0, 1, 5.0))
sketch20.addConstraint(Sketcher.Constraint("DistanceX", -1, 1, 1, 2, 44.0))
sketch20.addConstraint(Sketcher.Constraint("DistanceY", -1, 1, 0, 3, 5.5))
pocket13 = doc.addObject("PartDesign::Pocket", "Pocket012")
body.addObject(pocket13)
pocket13.Profile = sketch20
pocket13.Length = 1

doc.recompute()
